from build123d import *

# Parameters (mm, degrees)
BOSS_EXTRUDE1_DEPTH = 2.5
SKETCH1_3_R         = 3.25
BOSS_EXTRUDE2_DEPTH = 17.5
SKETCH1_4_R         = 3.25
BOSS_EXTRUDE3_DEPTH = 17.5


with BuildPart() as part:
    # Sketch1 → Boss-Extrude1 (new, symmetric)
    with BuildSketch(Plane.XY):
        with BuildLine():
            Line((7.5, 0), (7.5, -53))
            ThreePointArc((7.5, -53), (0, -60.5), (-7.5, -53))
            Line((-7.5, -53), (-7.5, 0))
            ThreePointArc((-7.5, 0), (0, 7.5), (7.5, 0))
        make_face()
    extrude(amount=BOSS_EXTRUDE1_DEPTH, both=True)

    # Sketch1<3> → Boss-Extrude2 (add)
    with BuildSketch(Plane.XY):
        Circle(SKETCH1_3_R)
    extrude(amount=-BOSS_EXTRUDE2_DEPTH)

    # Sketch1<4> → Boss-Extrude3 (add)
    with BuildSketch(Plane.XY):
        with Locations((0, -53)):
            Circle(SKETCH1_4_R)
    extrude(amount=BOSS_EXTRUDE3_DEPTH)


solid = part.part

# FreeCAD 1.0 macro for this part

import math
import FreeCAD as App
import Part
import Sketcher

V = App.Vector

doc = App.newDocument("Part")
body = doc.addObject("PartDesign::Body", "Body")

sketch1 = body.newObject("Sketcher::SketchObject", "Sketch")
sketch1.AttachmentSupport = (doc.getObject("XY_Plane"), [""])
sketch1.MapMode = "FlatFace"
sketch1.addGeometry([
    Part.LineSegment(V(8, -53, 0), V(8, 0, 0)),
    Part.ArcOfCircle(Part.Circle(V(0, 0, 0), V(0, 0, 1), 8), math.radians(0), math.radians(180)),
    Part.LineSegment(V(-8, 0, 0), V(-8, -53, 0)),
    Part.ArcOfCircle(Part.Circle(V(0, -53, 0), V(0, 0, 1), 8), math.radians(180), math.radians(360)),
], False)
sketch1.addConstraint([
    Sketcher.Constraint("Tangent", 0, 2, 1, 1),
    Sketcher.Constraint("Tangent", 1, 2, 2, 1),
    Sketcher.Constraint("Tangent", 2, 2, 3, 1),
    Sketcher.Constraint("Tangent", 3, 2, 0, 1),
    Sketcher.Constraint("Vertical", 0),
    Sketcher.Constraint("Vertical", 2),
    Sketcher.Constraint("Coincident", 1, 3, -1, 1),
    Sketcher.Constraint("Radius", 1, 7.5),
    Sketcher.Constraint("DistanceY", 0, 1, 0, 2, 53.0),
])
pad1 = body.newObject("PartDesign::Pad", "Pad")
pad1.Profile = sketch1
pad1.Length = 5
pad1.Midplane = True

sketch2 = body.newObject("Sketcher::SketchObject", "Sketch001")
sketch2.AttachmentSupport = (doc.getObject("XY_Plane"), [""])
sketch2.MapMode = "FlatFace"
sketch2.addGeometry(Part.Circle(V(0, 0, 0), V(0, 0, 1), 3.2), False)
sketch2.addConstraint([
    Sketcher.Constraint("Coincident", 0, 3, -1, 1),
    Sketcher.Constraint("Diameter", 0, 6.5),
])
pad2 = body.newObject("PartDesign::Pad", "Pad001")
pad2.Profile = sketch2
pad2.Length = 17.5
pad2.Reversed = True

sketch3 = body.newObject("Sketcher::SketchObject", "Sketch002")
sketch3.AttachmentSupport = (doc.getObject("XY_Plane"), [""])
sketch3.MapMode = "FlatFace"
sketch3.addGeometry(Part.Circle(V(0, -53, 0), V(0, 0, 1), 3.2), False)
sketch3.addConstraint([
    Sketcher.Constraint("PointOnObject", 0, 3, -2),
    Sketcher.Constraint("Diameter", 0, 6.5),
    Sketcher.Constraint("DistanceY", 0, 3, -1, 1, 53.0),
])
pad3 = body.newObject("PartDesign::Pad", "Pad002")
pad3.Profile = sketch3
pad3.Length = 17.5

doc.recompute()
